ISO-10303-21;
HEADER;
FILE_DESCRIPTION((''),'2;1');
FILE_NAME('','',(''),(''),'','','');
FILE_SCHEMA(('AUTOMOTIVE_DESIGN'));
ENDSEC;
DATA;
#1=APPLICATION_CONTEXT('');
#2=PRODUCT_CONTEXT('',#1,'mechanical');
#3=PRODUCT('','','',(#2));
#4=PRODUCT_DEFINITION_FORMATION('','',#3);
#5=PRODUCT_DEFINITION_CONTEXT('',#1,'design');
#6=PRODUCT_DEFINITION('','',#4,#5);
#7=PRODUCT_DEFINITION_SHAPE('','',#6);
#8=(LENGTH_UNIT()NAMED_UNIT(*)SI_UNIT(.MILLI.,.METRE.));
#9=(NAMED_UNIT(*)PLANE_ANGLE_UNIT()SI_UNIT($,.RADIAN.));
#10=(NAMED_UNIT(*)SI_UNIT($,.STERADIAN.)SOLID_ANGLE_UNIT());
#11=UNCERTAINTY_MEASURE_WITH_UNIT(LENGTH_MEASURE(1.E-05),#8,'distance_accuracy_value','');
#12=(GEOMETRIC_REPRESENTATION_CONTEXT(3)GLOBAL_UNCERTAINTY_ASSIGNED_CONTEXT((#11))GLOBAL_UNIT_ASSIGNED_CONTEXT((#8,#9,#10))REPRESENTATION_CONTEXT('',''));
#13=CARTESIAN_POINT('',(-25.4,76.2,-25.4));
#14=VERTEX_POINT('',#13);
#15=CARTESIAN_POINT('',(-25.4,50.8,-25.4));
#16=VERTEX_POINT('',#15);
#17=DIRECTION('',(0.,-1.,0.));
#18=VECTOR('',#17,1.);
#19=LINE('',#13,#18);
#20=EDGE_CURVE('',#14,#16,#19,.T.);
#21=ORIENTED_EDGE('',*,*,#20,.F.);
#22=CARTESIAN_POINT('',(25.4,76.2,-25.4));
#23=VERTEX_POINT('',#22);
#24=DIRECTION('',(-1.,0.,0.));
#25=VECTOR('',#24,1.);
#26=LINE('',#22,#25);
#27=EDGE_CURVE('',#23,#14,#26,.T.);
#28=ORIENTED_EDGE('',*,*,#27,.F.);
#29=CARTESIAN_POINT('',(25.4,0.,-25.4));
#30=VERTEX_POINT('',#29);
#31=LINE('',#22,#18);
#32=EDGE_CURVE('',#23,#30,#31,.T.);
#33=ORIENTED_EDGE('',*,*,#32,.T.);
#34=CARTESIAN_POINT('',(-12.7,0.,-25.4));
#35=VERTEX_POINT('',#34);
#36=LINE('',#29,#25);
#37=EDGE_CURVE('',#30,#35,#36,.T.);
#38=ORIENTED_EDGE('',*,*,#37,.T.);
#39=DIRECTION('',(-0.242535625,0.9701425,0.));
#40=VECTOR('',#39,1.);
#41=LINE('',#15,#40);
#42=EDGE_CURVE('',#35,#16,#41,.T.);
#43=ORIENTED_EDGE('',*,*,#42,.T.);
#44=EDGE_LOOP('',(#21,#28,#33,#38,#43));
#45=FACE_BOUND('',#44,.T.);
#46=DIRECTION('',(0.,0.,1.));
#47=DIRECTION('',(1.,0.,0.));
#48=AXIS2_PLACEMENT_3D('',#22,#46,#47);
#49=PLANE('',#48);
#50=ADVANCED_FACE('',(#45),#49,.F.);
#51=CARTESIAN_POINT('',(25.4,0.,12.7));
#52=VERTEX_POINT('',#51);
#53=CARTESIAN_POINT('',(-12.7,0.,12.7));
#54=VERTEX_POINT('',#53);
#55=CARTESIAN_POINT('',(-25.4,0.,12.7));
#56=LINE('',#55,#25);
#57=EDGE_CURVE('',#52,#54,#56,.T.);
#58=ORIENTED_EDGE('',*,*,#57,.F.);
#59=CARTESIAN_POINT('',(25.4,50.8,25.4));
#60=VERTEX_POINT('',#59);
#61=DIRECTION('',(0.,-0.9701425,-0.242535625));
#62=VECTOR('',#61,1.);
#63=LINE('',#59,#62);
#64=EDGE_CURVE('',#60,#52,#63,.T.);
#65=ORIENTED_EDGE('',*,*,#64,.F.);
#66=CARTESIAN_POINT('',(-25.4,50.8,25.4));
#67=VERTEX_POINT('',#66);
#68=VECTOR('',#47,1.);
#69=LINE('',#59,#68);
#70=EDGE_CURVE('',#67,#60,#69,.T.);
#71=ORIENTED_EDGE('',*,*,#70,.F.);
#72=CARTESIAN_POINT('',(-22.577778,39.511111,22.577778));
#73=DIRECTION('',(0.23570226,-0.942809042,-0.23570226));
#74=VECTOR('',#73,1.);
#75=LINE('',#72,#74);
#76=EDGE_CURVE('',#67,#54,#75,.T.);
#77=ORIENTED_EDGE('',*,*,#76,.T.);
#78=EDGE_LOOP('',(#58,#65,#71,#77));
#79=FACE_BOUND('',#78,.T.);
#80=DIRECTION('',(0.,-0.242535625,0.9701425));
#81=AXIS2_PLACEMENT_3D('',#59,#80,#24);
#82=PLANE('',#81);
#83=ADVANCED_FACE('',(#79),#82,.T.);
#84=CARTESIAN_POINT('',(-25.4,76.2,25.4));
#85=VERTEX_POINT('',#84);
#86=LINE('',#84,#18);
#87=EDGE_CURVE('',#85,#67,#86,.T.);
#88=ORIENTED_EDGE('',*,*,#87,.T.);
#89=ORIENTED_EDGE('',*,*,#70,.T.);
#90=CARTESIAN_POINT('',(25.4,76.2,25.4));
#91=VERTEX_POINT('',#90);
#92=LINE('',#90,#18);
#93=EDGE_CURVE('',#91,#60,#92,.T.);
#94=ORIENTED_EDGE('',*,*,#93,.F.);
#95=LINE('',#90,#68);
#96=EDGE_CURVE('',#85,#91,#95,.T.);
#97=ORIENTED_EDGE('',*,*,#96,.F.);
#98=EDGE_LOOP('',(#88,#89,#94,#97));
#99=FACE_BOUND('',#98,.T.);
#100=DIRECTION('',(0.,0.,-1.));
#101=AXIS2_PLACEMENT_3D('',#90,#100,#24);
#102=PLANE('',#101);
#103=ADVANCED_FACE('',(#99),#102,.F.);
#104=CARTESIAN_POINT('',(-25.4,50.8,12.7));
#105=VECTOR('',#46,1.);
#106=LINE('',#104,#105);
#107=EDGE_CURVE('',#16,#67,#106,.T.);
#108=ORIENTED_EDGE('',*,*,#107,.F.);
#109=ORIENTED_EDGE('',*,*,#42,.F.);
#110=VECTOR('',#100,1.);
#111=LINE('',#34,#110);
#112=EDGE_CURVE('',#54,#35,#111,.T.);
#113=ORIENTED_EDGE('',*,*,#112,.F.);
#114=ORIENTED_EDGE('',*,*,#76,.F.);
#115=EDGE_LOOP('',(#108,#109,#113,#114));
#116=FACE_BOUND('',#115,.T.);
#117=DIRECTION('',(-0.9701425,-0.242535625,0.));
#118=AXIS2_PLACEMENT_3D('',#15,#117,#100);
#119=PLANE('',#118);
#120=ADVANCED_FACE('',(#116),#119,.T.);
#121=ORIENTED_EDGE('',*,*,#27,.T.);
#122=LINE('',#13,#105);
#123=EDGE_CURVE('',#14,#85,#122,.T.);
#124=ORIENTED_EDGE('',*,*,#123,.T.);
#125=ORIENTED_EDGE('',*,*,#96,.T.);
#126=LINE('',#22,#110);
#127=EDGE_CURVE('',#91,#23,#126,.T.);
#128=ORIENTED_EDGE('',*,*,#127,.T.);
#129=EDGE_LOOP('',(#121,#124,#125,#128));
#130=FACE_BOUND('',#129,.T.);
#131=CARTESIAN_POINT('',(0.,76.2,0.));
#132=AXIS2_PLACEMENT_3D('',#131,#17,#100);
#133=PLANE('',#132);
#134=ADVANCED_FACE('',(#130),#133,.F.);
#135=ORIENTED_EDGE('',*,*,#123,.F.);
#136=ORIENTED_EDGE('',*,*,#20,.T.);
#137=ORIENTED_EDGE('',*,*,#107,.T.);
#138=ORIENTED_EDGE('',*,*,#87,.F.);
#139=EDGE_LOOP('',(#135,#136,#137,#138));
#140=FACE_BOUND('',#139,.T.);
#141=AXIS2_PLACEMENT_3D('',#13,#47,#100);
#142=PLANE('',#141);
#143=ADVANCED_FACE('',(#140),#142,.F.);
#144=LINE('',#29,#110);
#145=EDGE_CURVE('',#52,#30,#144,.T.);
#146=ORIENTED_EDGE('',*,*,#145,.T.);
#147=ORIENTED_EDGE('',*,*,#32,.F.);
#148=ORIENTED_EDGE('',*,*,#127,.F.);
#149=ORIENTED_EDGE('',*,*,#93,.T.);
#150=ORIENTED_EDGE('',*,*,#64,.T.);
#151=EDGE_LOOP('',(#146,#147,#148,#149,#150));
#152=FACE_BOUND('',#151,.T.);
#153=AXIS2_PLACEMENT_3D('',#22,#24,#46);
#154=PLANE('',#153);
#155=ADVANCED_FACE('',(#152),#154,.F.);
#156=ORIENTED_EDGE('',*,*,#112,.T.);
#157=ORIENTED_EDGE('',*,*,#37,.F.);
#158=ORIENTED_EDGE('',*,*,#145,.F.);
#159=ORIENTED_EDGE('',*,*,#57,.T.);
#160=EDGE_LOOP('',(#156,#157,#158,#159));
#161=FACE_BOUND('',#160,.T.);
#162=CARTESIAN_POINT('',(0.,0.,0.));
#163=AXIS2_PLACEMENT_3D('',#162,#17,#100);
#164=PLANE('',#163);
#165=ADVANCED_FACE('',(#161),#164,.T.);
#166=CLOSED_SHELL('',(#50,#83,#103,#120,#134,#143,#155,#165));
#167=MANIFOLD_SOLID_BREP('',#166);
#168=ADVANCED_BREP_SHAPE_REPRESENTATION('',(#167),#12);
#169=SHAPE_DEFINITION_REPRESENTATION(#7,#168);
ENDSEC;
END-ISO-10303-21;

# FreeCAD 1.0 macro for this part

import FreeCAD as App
import Part
import Sketcher
from FreeCAD import Vector
Q = App.Units.Quantity


def edges_at(feature, points):
    """Names of the edges that pass closest to the given points."""
    edges = feature.Shape.Edges
    near = lambda p: min(range(len(edges)), key=lambda i: edges[i].distToShape(Part.Vertex(*p))[0])
    return sorted({f"Edge{near(p) + 1}" for p in points})


def add_polygon(sketch, points):
    """Adds a closed chain of lines whose ends are joined by coincident constraints."""
    first, n = sketch.GeometryCount, len(points)
    for a, b in zip(points, points[1:] + points[:1]):
        sketch.addGeometry(Part.LineSegment(App.Vector(*a, 0), App.Vector(*b, 0)), False)
    for i in range(n):
        sketch.addConstraint(Sketcher.Constraint("Coincident", first + i, 2, first + (i + 1) % n, 1))

doc = App.newDocument("Part")
body = doc.addObject("PartDesign::Body", "Body")

# Sketch on XZ plane
sketch1 = body.newObject("Sketcher::SketchObject", "Sketch")
sketch1.AttachmentSupport = (doc.getObject("XZ_Plane"), [""])
sketch1.MapMode = "FlatFace"
add_polygon(sketch1, [(-25, -25), (-25, 25), (25, 25), (25, -25)])  # lines 0-3
sketch1.addConstraint([
    Sketcher.Constraint("Vertical", 0),
    Sketcher.Constraint("Horizontal", 1),
    Sketcher.Constraint("Vertical", 2),
    Sketcher.Constraint("Horizontal", 3),
    Sketcher.Constraint("Symmetric", 0, 2, 2, 2, -1, 1),
    Sketcher.Constraint("Equal", 3, 0),
    Sketcher.Constraint("DistanceX", 1, 1, 1, 2, Q("2 in")),
])
pad1 = body.newObject("PartDesign::Pad", "Pad")
pad1.Profile = sketch1
pad1.Length = Q("3 in")
pad1.Reversed = True
doc.recompute()

chamfer = body.newObject("PartDesign::Chamfer", "Chamfer")
chamfer.Base = (pad1, edges_at(pad1, [(0, 0, 25.4)]))
chamfer.ChamferType = "Two distances"
chamfer.Size = Q("0.5 in")
chamfer.Size2 = Q("2 in")
chamfer.FlipDirection = True
doc.recompute()

chamfer2 = body.newObject("PartDesign::Chamfer", "Chamfer001")
chamfer2.Base = (chamfer, edges_at(chamfer, [(-25.4, 0, -6.35)]))
chamfer2.ChamferType = "Two distances"
chamfer2.Size = Q("0.5 in")
chamfer2.Size2 = Q("2 in")
chamfer2.FlipDirection = True

doc.recompute()
